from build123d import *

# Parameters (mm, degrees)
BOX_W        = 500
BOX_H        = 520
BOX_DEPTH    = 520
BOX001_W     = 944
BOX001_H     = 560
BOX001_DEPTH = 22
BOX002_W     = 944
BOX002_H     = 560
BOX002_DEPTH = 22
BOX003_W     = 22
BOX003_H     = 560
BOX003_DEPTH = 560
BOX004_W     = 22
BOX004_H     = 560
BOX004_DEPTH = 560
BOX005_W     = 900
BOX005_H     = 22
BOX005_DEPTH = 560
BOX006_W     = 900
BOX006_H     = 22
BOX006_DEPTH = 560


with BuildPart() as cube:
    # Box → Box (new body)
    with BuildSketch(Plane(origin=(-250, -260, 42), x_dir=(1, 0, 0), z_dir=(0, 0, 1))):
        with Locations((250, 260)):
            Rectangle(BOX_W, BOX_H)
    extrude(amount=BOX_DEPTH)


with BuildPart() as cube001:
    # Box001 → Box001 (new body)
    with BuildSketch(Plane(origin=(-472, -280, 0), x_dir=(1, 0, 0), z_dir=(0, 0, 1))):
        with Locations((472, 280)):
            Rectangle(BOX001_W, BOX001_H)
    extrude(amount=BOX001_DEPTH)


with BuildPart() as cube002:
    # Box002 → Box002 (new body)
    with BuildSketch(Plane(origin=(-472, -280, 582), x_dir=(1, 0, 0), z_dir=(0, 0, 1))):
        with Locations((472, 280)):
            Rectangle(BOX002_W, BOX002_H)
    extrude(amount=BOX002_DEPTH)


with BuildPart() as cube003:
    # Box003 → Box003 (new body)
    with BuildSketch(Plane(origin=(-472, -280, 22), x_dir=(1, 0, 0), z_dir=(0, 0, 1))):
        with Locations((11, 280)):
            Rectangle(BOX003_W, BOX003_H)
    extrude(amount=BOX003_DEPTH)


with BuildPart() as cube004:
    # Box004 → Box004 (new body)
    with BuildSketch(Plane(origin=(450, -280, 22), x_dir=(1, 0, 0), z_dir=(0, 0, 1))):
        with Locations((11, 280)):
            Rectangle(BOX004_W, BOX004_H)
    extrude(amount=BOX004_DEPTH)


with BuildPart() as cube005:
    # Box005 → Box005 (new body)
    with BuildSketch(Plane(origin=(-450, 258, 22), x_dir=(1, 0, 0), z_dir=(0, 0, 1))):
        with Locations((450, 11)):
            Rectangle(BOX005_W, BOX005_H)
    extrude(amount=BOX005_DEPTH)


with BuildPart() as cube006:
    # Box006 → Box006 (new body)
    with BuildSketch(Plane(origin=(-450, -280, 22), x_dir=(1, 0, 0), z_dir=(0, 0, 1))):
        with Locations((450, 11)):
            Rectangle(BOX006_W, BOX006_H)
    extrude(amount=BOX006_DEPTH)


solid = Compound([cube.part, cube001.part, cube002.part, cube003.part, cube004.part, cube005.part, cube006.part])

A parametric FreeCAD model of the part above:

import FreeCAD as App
import Part
import Sketcher
from FreeCAD import Vector
Q = App.Units.Quantity


def add_polygon(sketch, points):
    """Adds a closed chain of lines whose ends are joined by coincident constraints."""
    first, n = sketch.GeometryCount, len(points)
    for a, b in zip(points, points[1:] + points[:1]):
        sketch.addGeometry(Part.LineSegment(App.Vector(*a, 0), App.Vector(*b, 0)), False)
    for i in range(n):
        sketch.addConstraint(Sketcher.Constraint("Coincident", first + i, 2, first + (i + 1) % n, 1))

doc = App.newDocument("Part")
body = doc.addObject("PartDesign::Body", "Body")

# Sketch on XY plane
sketch1 = doc.addObject("Sketcher::SketchObject", "Sketch")
body.addObject(sketch1)
sketch1.AttachmentSupport = (doc.XY_Plane, [""])
sketch1.MapMode = "FlatFace"
sketch1.AttachmentOffset = App.Placement(Vector(0, 0, 42), App.Rotation())
add_polygon(sketch1, [(-250, 260), (-250, -260), (250, -260), (250, 260)])  # lines 0-3
sketch1.addConstraint(Sketcher.Constraint("Vertical", 0))
sketch1.addConstraint(Sketcher.Constraint("Horizontal", 1))
sketch1.addConstraint(Sketcher.Constraint("Vertical", 2))
sketch1.addConstraint(Sketcher.Constraint("Horizontal", 3))
sketch1.addConstraint(Sketcher.Constraint("Symmetric", 0, 2, 2, 2, -1, 1))
sketch1.addConstraint(Sketcher.Constraint("DistanceX", 1, 1, 1, 2, Q("500 mm")))
sketch1.addConstraint(Sketcher.Constraint("DistanceY", 0, 2, 0, 1, Q("520 mm")))
pad1 = doc.addObject("PartDesign::Pad", "Pad")
body.addObject(pad1)
pad1.Profile = sketch1
pad1.Length = 520
body2 = doc.addObject("PartDesign::Body", "Body001")

# Sketch on XY plane
sketch2 = doc.addObject("Sketcher::SketchObject", "Sketch001")
body2.addObject(sketch2)
sketch2.AttachmentSupport = (doc.getObject("XY_Plane001"), [""])
sketch2.MapMode = "FlatFace"
add_polygon(sketch2, [(-472, 280), (-472, -280), (472, -280), (472, 280)])  # lines 0-3
sketch2.addConstraint(Sketcher.Constraint("Vertical", 0))
sketch2.addConstraint(Sketcher.Constraint("Horizontal", 1))
sketch2.addConstraint(Sketcher.Constraint("Vertical", 2))
sketch2.addConstraint(Sketcher.Constraint("Horizontal", 3))
sketch2.addConstraint(Sketcher.Constraint("Symmetric", 0, 2, 2, 2, -1, 1))
sketch2.addConstraint(Sketcher.Constraint("DistanceX", 1, 1, 1, 2, Q("944 mm")))
sketch2.addConstraint(Sketcher.Constraint("DistanceY", 0, 2, 0, 1, Q("560 mm")))
pad2 = doc.addObject("PartDesign::Pad", "Pad001")
body2.addObject(pad2)
pad2.Profile = sketch2
pad2.Length = 22
body3 = doc.addObject("PartDesign::Body", "Body002")

# Sketch on XY plane
sketch3 = doc.addObject("Sketcher::SketchObject", "Sketch002")
body3.addObject(sketch3)
sketch3.AttachmentSupport = (doc.getObject("XY_Plane002"), [""])
sketch3.MapMode = "FlatFace"
sketch3.AttachmentOffset = App.Placement(Vector(0, 0, 582), App.Rotation())
add_polygon(sketch3, [(-472, 280), (-472, -280), (472, -280), (472, 280)])  # lines 0-3
sketch3.addConstraint(Sketcher.Constraint("Vertical", 0))
sketch3.addConstraint(Sketcher.Constraint("Horizontal", 1))
sketch3.addConstraint(Sketcher.Constraint("Vertical", 2))
sketch3.addConstraint(Sketcher.Constraint("Horizontal", 3))
sketch3.addConstraint(Sketcher.Constraint("Symmetric", 0, 2, 2, 2, -1, 1))
sketch3.addConstraint(Sketcher.Constraint("DistanceX", 1, 1, 1, 2, Q("944 mm")))
sketch3.addConstraint(Sketcher.Constraint("DistanceY", 0, 2, 0, 1, Q("560 mm")))
pad3 = doc.addObject("PartDesign::Pad", "Pad002")
body3.addObject(pad3)
pad3.Profile = sketch3
pad3.Length = 22
body4 = doc.addObject("PartDesign::Body", "Body003")

# Sketch on XY plane
sketch4 = doc.addObject("Sketcher::SketchObject", "Sketch003")
body4.addObject(sketch4)
sketch4.AttachmentSupport = (doc.getObject("XY_Plane003"), [""])
sketch4.MapMode = "FlatFace"
sketch4.AttachmentOffset = App.Placement(Vector(0, 0, 22), App.Rotation())
add_polygon(sketch4, [(-472, 280), (-472, -280), (-450, -280), (-450, 280)])  # lines 0-3
sketch4.addConstraint(Sketcher.Constraint("Vertical", 0))
sketch4.addConstraint(Sketcher.Constraint("Horizontal", 1))
sketch4.addConstraint(Sketcher.Constraint("Vertical", 2))
sketch4.addConstraint(Sketcher.Constraint("Horizontal", 3))
sketch4.addConstraint(Sketcher.Constraint("DistanceX", 1, 1, 1, 2, Q("22 mm")))
sketch4.addConstraint(Sketcher.Constraint("DistanceY", 0, 2, 0, 1, Q("560 mm")))
sketch4.addConstraint(Sketcher.Constraint("DistanceX", 0, 2, -1, 1, Q("472 mm")))
sketch4.addConstraint(Sketcher.Constraint("DistanceY", 0, 2, -1, 1, Q("280 mm")))
pad4 = doc.addObject("PartDesign::Pad", "Pad003")
body4.addObject(pad4)
pad4.Profile = sketch4
pad4.Length = 560
body5 = doc.addObject("PartDesign::Body", "Body004")

# Sketch on XY plane
sketch5 = doc.addObject("Sketcher::SketchObject", "Sketch004")
body5.addObject(sketch5)
sketch5.AttachmentSupport = (doc.getObject("XY_Plane004"), [""])
sketch5.MapMode = "FlatFace"
sketch5.AttachmentOffset = App.Placement(Vector(0, 0, 22), App.Rotation())
add_polygon(sketch5, [(450, 280), (450, -280), (472, -280), (472, 280)])  # lines 0-3
sketch5.addConstraint(Sketcher.Constraint("Vertical", 0))
sketch5.addConstraint(Sketcher.Constraint("Horizontal", 1))
sketch5.addConstraint(Sketcher.Constraint("Vertical", 2))
sketch5.addConstraint(Sketcher.Constraint("Horizontal", 3))
sketch5.addConstraint(Sketcher.Constraint("DistanceX", 1, 1, 1, 2, Q("22 mm")))
sketch5.addConstraint(Sketcher.Constraint("DistanceY", 0, 2, 0, 1, Q("560 mm")))
sketch5.addConstraint(Sketcher.Constraint("DistanceX", -1, 1, 0, 2, Q("450 mm")))
sketch5.addConstraint(Sketcher.Constraint("DistanceY", 0, 2, -1, 1, Q("280 mm")))
pad5 = doc.addObject("PartDesign::Pad", "Pad004")
body5.addObject(pad5)
pad5.Profile = sketch5
pad5.Length = 560
body6 = doc.addObject("PartDesign::Body", "Body005")

# Sketch on XY plane
sketch6 = doc.addObject("Sketcher::SketchObject", "Sketch005")
body6.addObject(sketch6)
sketch6.AttachmentSupport = (doc.getObject("XY_Plane005"), [""])
sketch6.MapMode = "FlatFace"
sketch6.AttachmentOffset = App.Placement(Vector(0, 0, 22), App.Rotation())
add_polygon(sketch6, [(-450, 280), (-450, 258), (450, 258), (450, 280)])  # lines 0-3
sketch6.addConstraint(Sketcher.Constraint("Vertical", 0))
sketch6.addConstraint(Sketcher.Constraint("Horizontal", 1))
sketch6.addConstraint(Sketcher.Constraint("Vertical", 2))
sketch6.addConstraint(Sketcher.Constraint("Horizontal", 3))
sketch6.addConstraint(Sketcher.Constraint("DistanceX", 1, 1, 1, 2, Q("900 mm")))
sketch6.addConstraint(Sketcher.Constraint("DistanceY", 0, 2, 0, 1, Q("22 mm")))
sketch6.addConstraint(Sketcher.Constraint("DistanceX", 0, 2, -1, 1, Q("450 mm")))
sketch6.addConstraint(Sketcher.Constraint("DistanceY", -1, 1, 0, 2, Q("258 mm")))
pad6 = doc.addObject("PartDesign::Pad", "Pad005")
body6.addObject(pad6)
pad6.Profile = sketch6
pad6.Length = 560
body7 = doc.addObject("PartDesign::Body", "Body006")

# Sketch on XY plane
sketch7 = doc.addObject("Sketcher::SketchObject", "Sketch006")
body7.addObject(sketch7)
sketch7.AttachmentSupport = (doc.getObject("XY_Plane006"), [""])
sketch7.MapMode = "FlatFace"
sketch7.AttachmentOffset = App.Placement(Vector(0, 0, 22), App.Rotation())
add_polygon(sketch7, [(-450, -258), (-450, -280), (450, -280), (450, -258)])  # lines 0-3
sketch7.addConstraint(Sketcher.Constraint("Vertical", 0))
sketch7.addConstraint(Sketcher.Constraint("Horizontal", 1))
sketch7.addConstraint(Sketcher.Constraint("Vertical", 2))
sketch7.addConstraint(Sketcher.Constraint("Horizontal", 3))
sketch7.addConstraint(Sketcher.Constraint("DistanceX", 1, 1, 1, 2, Q("900 mm")))
sketch7.addConstraint(Sketcher.Constraint("DistanceY", 0, 2, 0, 1, Q("22 mm")))
sketch7.addConstraint(Sketcher.Constraint("DistanceX", 0, 2, -1, 1, Q("450 mm")))
sketch7.addConstraint(Sketcher.Constraint("DistanceY", 0, 2, -1, 1, Q("280 mm")))
pad7 = doc.addObject("PartDesign::Pad", "Pad006")
body7.addObject(pad7)
pad7.Profile = sketch7
pad7.Length = 560

doc.recompute()
